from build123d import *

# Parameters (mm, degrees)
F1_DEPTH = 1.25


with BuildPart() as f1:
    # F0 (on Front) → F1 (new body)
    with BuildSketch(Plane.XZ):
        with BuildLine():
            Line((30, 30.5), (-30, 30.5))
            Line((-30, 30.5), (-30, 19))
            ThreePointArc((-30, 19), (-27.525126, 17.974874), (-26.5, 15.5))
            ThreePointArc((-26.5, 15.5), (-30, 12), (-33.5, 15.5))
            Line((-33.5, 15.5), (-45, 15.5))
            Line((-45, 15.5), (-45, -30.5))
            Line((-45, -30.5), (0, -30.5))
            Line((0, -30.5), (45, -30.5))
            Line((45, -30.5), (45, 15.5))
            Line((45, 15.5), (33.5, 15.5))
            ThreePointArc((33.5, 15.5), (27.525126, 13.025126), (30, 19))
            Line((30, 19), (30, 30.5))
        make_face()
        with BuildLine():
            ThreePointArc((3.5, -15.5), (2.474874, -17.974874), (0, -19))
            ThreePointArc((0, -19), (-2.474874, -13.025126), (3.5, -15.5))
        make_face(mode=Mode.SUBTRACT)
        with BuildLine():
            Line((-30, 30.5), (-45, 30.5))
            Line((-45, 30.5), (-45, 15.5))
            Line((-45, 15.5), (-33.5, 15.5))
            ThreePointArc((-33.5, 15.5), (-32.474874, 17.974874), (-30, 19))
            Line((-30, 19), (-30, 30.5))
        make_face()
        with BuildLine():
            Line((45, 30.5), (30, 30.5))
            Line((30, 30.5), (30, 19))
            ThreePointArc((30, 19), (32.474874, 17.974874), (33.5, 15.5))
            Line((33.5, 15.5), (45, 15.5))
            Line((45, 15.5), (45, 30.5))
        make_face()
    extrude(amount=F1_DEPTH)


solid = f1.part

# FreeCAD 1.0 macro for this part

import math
import FreeCAD as App
import Part
import Sketcher
Q = App.Units.Quantity


def add_polygon(sketch, points):
    """Adds a closed chain of lines whose ends are joined by coincident constraints."""
    first, n = sketch.GeometryCount, len(points)
    for a, b in zip(points, points[1:] + points[:1]):
        sketch.addGeometry(Part.LineSegment(App.Vector(*a, 0), App.Vector(*b, 0)), False)
    for i in range(n):
        sketch.addConstraint(Sketcher.Constraint("Coincident", first + i, 2, first + (i + 1) % n, 1))

doc = App.newDocument("Part")
body = doc.addObject("PartDesign::Body", "Body")

# Sketch on XZ plane
sketch1 = body.newObject("Sketcher::SketchObject", "Sketch")
sketch1.AttachmentSupport = (doc.getObject("XZ_Plane"), [""])
sketch1.MapMode = "FlatFace"
add_polygon(sketch1, [(-45, 30.5), (-45, -30.5), (45, -30.5), (45, 30.5)])  # lines 0-3
sketch1.addGeometry(Part.ArcOfCircle(Part.Circle(App.Vector(30, 15.5, 0), App.Vector(0, 0, 1), 3.5), math.radians(90), math.radians(360)), False)  # 4
sketch1.addGeometry(Part.ArcOfCircle(Part.Circle(App.Vector(30, 15.5, 0), App.Vector(0, 0, 1), 3.5), math.radians(0), math.radians(90)), False)  # 5
sketch1.addGeometry(Part.ArcOfCircle(Part.Circle(App.Vector(-30, 15.5, 0), App.Vector(0, 0, 1), 3.5), math.radians(0), math.radians(90)), False)  # 6
sketch1.addGeometry(Part.ArcOfCircle(Part.Circle(App.Vector(-30, 15.5, 0), App.Vector(0, 0, 1), 3.5), math.radians(180), math.radians(360)), False)  # 7
sketch1.addGeometry(Part.ArcOfCircle(Part.Circle(App.Vector(-30, 15.5, 0), App.Vector(0, 0, 1), 3.5), math.radians(90), math.radians(180)), False)  # 8
sketch1.addGeometry(Part.ArcOfCircle(Part.Circle(App.Vector(0, -15.5, 0), App.Vector(0, 0, 1), 3.5), math.radians(0), math.radians(270)), False)  # 9
sketch1.addGeometry(Part.ArcOfCircle(Part.Circle(App.Vector(0, -15.5, 0), App.Vector(0, 0, 1), 3.5), math.radians(-90), math.radians(0)), False)  # 10
sketch1.addConstraint([
    Sketcher.Constraint("Tangent", 4, 1, 5, 2),
    Sketcher.Constraint("Coincident", 5, 1, 4, 2),
    Sketcher.Constraint("Tangent", 6, 1, 7, 2),
    Sketcher.Constraint("Tangent", 7, 1, 8, 2),
    Sketcher.Constraint("Tangent", 8, 1, 6, 2),
    Sketcher.Constraint("Tangent", 9, 1, 10, 2),
    Sketcher.Constraint("Coincident", 10, 1, 9, 2),
    Sketcher.Constraint("Vertical", 0),
    Sketcher.Constraint("Horizontal", 1),
    Sketcher.Constraint("Vertical", 2),
    Sketcher.Constraint("Horizontal", 3),
    Sketcher.Constraint("Equal", 5, 6),
    Sketcher.Constraint("Equal", 8, 9),
    Sketcher.Constraint("Symmetric", 0, 2, 2, 2, -1, 1),
    Sketcher.Constraint("Symmetric", 4, 3, 6, 3, -2),
    Sketcher.Constraint("PointOnObject", 9, 3, -2),
    Sketcher.Constraint("PointOnObject", 10, 1, -2),
    Sketcher.Constraint("Horizontal", 8, 3, 5, 1),
    Sketcher.Constraint("Horizontal", 5, 1, 6, 1),
    Sketcher.Constraint("Horizontal", 6, 1, 7, 1),
    Sketcher.Constraint("Horizontal", 10, 3, 9, 1),
    Sketcher.Constraint("Vertical", 5, 3, 4, 1),
    Sketcher.Constraint("Vertical", 7, 3, 8, 1),
    Sketcher.Constraint("Radius", 4, Q("3.5 mm")),
    Sketcher.Constraint("DistanceX", 1, 1, 1, 2, Q("90 mm")),
    Sketcher.Constraint("DistanceY", 0, 2, 0, 1, Q("61 mm")),
    Sketcher.Constraint("DistanceX", -1, 1, 4, 3, Q("30 mm")),
    Sketcher.Constraint("DistanceY", -1, 1, 4, 1, Q("19 mm")),
    Sketcher.Constraint("DistanceY", 10, 1, -1, 1, Q("19 mm")),
])
pad1 = body.newObject("PartDesign::Pad", "Pad")
pad1.Profile = sketch1
pad1.Length = 1.25

doc.recompute()
